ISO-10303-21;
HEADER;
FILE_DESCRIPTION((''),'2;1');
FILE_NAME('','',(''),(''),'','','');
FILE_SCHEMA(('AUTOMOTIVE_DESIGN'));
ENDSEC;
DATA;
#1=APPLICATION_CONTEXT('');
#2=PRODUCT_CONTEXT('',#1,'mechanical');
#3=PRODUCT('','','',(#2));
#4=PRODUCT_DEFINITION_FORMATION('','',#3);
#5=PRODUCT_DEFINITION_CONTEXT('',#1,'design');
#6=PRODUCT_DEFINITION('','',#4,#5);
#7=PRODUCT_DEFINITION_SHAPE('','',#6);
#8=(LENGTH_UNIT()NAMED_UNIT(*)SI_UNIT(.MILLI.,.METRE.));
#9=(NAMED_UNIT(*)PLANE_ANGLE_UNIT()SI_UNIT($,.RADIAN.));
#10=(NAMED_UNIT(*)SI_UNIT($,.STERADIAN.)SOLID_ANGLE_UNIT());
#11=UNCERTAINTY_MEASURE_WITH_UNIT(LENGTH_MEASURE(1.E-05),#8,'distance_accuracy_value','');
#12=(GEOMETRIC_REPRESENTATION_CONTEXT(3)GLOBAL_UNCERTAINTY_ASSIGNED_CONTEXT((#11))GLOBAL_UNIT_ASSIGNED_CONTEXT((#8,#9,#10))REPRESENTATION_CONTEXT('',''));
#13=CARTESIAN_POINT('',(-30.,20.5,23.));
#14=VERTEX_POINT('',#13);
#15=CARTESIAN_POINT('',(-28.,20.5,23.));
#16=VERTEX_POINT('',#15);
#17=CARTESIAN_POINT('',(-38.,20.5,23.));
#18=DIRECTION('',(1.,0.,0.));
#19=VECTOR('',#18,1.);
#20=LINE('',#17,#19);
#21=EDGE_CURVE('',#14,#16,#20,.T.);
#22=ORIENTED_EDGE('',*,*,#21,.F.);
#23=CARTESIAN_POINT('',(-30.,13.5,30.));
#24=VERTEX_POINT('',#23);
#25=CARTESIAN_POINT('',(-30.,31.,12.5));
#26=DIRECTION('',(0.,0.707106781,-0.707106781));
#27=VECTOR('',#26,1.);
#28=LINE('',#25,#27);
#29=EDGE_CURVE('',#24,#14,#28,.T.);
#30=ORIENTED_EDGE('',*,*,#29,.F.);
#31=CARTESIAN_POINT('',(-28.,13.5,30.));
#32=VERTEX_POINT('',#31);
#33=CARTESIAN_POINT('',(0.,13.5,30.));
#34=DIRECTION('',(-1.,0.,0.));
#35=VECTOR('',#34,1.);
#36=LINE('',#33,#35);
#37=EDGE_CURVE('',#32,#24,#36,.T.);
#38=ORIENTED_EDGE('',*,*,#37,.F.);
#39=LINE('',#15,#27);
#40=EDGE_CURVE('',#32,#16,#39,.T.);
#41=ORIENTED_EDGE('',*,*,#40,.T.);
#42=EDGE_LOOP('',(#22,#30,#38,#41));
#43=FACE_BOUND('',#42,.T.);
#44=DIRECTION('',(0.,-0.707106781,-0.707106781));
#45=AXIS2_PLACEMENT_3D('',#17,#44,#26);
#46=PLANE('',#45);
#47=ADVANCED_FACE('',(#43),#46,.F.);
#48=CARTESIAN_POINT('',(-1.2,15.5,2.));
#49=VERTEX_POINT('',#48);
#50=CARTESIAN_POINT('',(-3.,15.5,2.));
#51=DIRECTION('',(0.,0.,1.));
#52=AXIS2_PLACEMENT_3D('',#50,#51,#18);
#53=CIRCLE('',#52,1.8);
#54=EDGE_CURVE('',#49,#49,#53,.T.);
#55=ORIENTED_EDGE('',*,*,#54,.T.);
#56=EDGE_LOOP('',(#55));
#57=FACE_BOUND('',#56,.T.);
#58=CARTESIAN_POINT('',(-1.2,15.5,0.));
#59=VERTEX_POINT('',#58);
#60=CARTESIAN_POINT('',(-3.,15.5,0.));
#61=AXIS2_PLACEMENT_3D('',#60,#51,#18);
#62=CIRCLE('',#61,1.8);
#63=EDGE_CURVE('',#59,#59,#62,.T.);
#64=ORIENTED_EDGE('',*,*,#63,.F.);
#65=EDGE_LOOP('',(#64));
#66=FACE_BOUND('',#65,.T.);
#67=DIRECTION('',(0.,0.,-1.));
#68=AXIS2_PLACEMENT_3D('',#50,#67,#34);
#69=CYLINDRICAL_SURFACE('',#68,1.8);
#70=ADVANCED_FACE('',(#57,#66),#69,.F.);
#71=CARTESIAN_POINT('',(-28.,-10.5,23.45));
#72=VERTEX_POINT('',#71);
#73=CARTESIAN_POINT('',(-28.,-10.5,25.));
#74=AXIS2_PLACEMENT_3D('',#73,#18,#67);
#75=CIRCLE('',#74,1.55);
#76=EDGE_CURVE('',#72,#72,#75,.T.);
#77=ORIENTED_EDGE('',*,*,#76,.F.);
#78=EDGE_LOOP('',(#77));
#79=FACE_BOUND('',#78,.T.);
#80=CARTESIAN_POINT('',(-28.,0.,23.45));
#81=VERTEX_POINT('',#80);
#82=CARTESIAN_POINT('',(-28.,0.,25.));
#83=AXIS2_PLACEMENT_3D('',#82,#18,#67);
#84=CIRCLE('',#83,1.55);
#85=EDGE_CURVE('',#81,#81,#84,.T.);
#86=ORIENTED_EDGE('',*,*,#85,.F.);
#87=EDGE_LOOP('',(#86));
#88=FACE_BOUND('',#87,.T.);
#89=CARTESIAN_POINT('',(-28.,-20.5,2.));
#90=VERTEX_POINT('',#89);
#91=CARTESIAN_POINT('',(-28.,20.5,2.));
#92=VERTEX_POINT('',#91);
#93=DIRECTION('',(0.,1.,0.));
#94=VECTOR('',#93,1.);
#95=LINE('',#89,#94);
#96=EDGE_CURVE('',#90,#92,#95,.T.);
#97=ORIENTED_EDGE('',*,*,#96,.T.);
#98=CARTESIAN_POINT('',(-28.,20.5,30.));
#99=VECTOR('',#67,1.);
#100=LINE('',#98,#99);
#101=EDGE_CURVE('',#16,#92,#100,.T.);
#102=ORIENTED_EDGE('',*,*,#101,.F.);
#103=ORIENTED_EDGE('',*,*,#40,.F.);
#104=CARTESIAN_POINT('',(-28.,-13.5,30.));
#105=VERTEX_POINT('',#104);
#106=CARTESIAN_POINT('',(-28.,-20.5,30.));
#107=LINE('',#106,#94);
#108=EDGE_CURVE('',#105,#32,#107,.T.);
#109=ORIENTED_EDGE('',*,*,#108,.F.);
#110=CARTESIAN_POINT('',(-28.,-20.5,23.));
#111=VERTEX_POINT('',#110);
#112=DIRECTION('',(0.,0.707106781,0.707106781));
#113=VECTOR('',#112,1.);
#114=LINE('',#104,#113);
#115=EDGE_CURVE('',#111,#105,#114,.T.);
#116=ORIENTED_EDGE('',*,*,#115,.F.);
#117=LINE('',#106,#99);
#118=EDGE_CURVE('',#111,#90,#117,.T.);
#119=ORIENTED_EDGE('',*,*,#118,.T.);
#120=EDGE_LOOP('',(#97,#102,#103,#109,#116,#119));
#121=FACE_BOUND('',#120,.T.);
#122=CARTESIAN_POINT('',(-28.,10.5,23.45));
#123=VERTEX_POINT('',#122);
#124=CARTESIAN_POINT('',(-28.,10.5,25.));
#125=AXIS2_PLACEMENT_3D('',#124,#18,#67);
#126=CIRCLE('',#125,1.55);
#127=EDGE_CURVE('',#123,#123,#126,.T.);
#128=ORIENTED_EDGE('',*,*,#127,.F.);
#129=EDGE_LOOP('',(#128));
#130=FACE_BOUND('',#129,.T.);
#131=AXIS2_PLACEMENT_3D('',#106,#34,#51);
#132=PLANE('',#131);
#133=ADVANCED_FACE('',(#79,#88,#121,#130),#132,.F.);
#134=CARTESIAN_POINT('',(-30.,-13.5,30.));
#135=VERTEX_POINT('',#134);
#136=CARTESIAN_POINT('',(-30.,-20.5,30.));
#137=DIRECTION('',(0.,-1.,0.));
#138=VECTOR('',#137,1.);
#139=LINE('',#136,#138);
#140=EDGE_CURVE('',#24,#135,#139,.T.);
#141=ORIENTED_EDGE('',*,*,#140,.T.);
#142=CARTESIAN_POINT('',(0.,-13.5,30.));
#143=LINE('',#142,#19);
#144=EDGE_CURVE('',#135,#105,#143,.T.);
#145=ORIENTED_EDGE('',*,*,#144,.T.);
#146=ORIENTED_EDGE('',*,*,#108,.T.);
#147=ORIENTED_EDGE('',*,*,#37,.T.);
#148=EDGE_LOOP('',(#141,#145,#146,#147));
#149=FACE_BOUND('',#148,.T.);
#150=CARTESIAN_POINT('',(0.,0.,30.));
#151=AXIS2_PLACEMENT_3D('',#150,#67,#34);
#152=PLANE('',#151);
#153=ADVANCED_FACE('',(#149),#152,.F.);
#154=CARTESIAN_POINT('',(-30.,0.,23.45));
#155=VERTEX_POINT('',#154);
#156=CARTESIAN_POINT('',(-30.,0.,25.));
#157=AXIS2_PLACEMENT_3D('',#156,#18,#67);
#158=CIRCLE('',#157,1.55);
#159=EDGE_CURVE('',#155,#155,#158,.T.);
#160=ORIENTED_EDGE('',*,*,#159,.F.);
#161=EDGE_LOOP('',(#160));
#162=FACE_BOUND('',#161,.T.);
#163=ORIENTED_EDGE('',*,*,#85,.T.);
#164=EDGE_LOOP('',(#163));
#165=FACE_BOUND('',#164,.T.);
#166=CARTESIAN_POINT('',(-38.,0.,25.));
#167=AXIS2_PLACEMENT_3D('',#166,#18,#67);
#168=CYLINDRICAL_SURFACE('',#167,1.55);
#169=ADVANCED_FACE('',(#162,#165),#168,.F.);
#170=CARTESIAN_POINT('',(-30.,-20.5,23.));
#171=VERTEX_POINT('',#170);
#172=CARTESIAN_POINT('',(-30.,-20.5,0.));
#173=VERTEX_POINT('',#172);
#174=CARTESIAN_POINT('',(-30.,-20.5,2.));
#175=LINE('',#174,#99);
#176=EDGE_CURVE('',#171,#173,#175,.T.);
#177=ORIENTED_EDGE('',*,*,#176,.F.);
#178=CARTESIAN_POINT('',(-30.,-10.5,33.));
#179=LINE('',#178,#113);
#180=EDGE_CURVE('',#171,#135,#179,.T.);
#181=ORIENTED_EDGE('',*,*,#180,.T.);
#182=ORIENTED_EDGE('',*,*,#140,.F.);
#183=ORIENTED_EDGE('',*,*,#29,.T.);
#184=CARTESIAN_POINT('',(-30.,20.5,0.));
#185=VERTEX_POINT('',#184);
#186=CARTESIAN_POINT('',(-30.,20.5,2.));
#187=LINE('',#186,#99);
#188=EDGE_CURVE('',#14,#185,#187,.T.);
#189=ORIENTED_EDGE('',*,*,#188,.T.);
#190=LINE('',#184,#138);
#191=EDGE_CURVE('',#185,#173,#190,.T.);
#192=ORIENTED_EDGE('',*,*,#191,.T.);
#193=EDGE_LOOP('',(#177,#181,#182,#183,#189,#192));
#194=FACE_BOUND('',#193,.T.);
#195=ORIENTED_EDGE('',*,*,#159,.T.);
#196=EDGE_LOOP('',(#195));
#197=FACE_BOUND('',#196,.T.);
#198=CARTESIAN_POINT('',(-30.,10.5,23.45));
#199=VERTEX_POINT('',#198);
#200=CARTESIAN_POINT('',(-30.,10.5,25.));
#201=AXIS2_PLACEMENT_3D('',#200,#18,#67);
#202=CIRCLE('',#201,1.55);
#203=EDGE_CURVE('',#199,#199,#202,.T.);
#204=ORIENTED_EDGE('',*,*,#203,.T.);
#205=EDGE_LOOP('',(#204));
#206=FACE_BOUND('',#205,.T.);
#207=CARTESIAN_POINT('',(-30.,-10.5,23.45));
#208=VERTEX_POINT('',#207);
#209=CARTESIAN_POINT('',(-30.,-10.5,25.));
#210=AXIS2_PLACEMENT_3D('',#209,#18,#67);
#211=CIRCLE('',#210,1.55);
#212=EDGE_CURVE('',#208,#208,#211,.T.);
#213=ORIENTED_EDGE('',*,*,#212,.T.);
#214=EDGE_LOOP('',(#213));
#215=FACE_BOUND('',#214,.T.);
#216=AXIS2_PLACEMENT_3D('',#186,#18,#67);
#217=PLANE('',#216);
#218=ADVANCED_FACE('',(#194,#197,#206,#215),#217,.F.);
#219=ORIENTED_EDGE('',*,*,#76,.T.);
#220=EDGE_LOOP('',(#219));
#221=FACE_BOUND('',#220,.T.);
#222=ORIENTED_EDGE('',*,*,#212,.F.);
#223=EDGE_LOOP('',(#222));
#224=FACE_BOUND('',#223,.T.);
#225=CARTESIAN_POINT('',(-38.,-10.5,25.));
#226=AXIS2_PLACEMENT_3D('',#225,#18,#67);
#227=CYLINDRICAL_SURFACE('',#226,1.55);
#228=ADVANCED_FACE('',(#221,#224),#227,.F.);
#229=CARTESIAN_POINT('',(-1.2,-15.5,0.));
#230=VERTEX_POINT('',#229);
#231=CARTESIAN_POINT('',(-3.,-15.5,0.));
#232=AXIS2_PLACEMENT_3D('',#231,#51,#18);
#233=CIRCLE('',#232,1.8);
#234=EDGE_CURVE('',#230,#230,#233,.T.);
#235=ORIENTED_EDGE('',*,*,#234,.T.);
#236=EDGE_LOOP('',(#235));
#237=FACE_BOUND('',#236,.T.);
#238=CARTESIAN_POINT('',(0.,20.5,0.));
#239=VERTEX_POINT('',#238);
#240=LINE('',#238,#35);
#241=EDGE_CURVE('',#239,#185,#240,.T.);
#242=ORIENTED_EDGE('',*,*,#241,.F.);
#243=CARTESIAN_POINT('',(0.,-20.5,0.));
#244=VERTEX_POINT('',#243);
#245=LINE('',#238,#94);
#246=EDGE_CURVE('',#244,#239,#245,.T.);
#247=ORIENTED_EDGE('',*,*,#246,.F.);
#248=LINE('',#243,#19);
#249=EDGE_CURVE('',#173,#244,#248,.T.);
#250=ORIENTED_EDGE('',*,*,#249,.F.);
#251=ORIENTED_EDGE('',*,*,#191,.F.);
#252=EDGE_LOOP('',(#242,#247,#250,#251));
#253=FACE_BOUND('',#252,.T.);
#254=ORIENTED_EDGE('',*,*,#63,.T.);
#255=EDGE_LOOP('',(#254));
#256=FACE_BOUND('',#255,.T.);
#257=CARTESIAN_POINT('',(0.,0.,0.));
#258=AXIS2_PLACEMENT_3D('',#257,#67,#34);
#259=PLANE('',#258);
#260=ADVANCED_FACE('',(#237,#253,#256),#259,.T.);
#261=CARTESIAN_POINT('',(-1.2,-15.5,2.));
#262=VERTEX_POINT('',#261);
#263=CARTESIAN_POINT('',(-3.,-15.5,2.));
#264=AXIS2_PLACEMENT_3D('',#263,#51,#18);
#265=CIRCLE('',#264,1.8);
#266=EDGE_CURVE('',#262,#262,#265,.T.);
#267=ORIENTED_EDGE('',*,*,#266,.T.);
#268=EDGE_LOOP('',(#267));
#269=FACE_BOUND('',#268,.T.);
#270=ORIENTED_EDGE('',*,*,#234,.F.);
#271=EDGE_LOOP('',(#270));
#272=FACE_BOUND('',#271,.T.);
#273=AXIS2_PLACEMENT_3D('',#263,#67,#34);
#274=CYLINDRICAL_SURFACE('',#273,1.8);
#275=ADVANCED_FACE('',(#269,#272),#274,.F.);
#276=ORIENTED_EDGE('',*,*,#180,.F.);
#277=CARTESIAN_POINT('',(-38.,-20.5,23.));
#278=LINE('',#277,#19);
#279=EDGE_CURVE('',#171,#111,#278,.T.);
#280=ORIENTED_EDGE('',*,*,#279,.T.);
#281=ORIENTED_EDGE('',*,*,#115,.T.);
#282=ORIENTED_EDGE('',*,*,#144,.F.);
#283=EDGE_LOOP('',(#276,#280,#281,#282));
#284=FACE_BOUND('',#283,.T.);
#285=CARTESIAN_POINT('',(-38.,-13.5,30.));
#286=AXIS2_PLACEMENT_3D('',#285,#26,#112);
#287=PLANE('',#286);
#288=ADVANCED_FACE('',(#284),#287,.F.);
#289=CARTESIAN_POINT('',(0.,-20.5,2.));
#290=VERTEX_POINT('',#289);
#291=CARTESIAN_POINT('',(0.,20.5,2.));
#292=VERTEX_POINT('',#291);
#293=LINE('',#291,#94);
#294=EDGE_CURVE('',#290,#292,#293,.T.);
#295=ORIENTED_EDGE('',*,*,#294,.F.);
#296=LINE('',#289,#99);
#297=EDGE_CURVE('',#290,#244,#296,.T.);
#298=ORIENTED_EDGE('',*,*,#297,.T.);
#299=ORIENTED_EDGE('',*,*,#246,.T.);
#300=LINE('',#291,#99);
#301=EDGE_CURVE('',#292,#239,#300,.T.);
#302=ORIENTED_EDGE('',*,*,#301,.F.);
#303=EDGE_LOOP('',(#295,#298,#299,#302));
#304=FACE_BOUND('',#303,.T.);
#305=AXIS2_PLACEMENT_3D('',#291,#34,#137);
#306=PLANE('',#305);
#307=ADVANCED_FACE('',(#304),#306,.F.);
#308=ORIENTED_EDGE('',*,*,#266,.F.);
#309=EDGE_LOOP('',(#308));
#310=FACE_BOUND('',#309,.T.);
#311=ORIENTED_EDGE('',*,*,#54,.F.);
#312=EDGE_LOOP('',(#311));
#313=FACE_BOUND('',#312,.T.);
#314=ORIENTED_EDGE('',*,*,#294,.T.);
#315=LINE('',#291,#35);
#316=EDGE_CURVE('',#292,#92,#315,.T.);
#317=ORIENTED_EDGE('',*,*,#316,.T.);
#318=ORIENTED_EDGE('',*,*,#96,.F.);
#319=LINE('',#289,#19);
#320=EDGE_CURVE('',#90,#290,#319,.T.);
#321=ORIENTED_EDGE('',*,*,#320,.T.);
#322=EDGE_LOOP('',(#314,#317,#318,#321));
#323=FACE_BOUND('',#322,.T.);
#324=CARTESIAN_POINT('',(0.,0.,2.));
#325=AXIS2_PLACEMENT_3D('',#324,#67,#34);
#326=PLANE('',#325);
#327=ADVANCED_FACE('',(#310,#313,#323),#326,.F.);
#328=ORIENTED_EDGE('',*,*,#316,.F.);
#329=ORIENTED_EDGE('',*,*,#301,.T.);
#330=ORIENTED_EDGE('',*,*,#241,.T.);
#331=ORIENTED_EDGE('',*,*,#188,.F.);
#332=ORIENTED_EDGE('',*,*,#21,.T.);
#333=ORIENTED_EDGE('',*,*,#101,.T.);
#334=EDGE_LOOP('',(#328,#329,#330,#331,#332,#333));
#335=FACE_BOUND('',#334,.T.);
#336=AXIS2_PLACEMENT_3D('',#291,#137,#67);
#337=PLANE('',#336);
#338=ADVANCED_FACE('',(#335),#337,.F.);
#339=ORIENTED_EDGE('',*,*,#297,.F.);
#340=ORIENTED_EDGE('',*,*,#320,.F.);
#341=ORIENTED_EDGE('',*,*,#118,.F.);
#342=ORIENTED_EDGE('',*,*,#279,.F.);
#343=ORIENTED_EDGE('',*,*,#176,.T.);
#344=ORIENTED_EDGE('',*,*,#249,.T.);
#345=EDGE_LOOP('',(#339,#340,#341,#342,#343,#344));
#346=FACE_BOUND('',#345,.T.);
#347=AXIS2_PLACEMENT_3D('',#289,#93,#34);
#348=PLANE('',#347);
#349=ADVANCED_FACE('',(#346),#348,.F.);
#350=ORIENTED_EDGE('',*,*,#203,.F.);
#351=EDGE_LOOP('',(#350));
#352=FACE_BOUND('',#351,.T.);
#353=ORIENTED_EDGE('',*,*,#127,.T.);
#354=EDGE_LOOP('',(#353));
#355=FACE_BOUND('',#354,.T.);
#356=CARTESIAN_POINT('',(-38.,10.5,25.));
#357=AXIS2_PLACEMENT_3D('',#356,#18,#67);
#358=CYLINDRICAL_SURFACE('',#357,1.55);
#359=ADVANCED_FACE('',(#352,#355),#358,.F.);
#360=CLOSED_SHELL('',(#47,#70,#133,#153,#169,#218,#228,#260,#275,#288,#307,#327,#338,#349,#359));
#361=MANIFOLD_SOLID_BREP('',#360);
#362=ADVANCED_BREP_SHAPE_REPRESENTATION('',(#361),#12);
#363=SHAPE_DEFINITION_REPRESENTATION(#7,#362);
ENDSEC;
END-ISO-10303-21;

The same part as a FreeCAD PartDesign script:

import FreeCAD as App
import Part
import Sketcher

V = App.Vector

doc = App.newDocument("Part")
body = doc.addObject("PartDesign::Body", "Body")

sketch1 = doc.addObject("Sketcher::SketchObject", "Sketch")
body.addObject(sketch1)
sketch1.AttachmentSupport = (doc.XY_Plane, [""])
sketch1.MapMode = "FlatFace"
sketch1.addGeometry([
    Part.LineSegment(V(-30, 20.5, 0), V(-30, -20.5, 0)),
    Part.LineSegment(V(-30, -20.5, 0), V(0, -20.5, 0)),
    Part.LineSegment(V(0, -20.5, 0), V(0, 20.5, 0)),
    Part.LineSegment(V(0, 20.5, 0), V(-30, 20.5, 0)),
    Part.Circle(V(-3, -15.5, 0), V(0, 0, 1), 1.8),
    Part.Circle(V(-3, 15.5, 0), V(0, 0, 1), 1.8),
], False)
sketch1.addConstraint([
    Sketcher.Constraint("Coincident", 0, 2, 1, 1),
    Sketcher.Constraint("Coincident", 1, 2, 2, 1),
    Sketcher.Constraint("Coincident", 2, 2, 3, 1),
    Sketcher.Constraint("Coincident", 3, 2, 0, 1),
    Sketcher.Constraint("Vertical", 0),
    Sketcher.Constraint("Horizontal", 1),
    Sketcher.Constraint("Vertical", 2),
    Sketcher.Constraint("Horizontal", 3),
    Sketcher.Constraint("Equal", 4, 5),
    Sketcher.Constraint("Symmetric", 1, 2, 2, 2, -1, 1),
    Sketcher.Constraint("Symmetric", 4, 3, 5, 3, -1),
    Sketcher.Constraint("Diameter", 4, 3.6),
    Sketcher.Constraint("DistanceX", 1, 1, 1, 2, 30.0),
    Sketcher.Constraint("DistanceY", 0, 2, 0, 1, 41.0),
    Sketcher.Constraint("DistanceX", 4, 3, -1, 1, 3.0),
    Sketcher.Constraint("DistanceY", 4, 3, 5, 3, 31.0),
])
pad1 = doc.addObject("PartDesign::Pad", "Pad")
body.addObject(pad1)
pad1.Profile = sketch1
pad1.Length = 2

sketch2 = doc.addObject("Sketcher::SketchObject", "Sketch001")
body.addObject(sketch2)
sketch2.AttachmentSupport = (doc.XY_Plane, [""])
sketch2.MapMode = "FlatFace"
sketch2.AttachmentOffset = App.Placement(V(0, 0, 2), App.Rotation())
sketch2.addGeometry([
    Part.LineSegment(V(-30, 20.5, 0), V(-30, -20.5, 0)),
    Part.LineSegment(V(-30, -20.5, 0), V(-28, -20.5, 0)),
    Part.LineSegment(V(-28, -20.5, 0), V(-28, 20.5, 0)),
    Part.LineSegment(V(-28, 20.5, 0), V(-30, 20.5, 0)),
], False)
sketch2.addConstraint([
    Sketcher.Constraint("Coincident", 0, 2, 1, 1),
    Sketcher.Constraint("Coincident", 1, 2, 2, 1),
    Sketcher.Constraint("Coincident", 2, 2, 3, 1),
    Sketcher.Constraint("Coincident", 3, 2, 0, 1),
    Sketcher.Constraint("Vertical", 0),
    Sketcher.Constraint("Horizontal", 1),
    Sketcher.Constraint("Vertical", 2),
    Sketcher.Constraint("Horizontal", 3),
    Sketcher.Constraint("DistanceX", 1, 1, 1, 2, 2.0),
    Sketcher.Constraint("DistanceY", 0, 2, 0, 1, 41.0),
    Sketcher.Constraint("DistanceX", 0, 2, -1, 1, 30.0),
    Sketcher.Constraint("DistanceY", 0, 2, -1, 1, 20.5),
])
pad2 = doc.addObject("PartDesign::Pad", "Pad001")
body.addObject(pad2)
pad2.Profile = sketch2
pad2.Length = 28

sketch3 = doc.addObject("Sketcher::SketchObject", "Sketch002")
body.addObject(sketch3)
sketch3.AttachmentSupport = (doc.YZ_Plane, [""])
sketch3.MapMode = "FlatFace"
sketch3.AttachmentOffset = App.Placement(V(0, 0, -28), App.Rotation())
sketch3.addGeometry([
    Part.Circle(V(10.5, 25, 0), V(0, 0, 1), 1.55),
    Part.Circle(V(-10.5, 25, 0), V(0, 0, 1), 1.55),
    Part.Circle(V(0, 25, 0), V(0, 0, 1), 1.55),
    Part.LineSegment(V(-20.5, 23, 0), V(-13.5, 30, 0)),
    Part.LineSegment(V(-13.5, 30, 0), V(-20.5, 30, 0)),
    Part.LineSegment(V(-20.5, 30, 0), V(-20.5, 23, 0)),
    Part.LineSegment(V(20.5, 30, 0), V(13.5, 30, 0)),
    Part.LineSegment(V(13.5, 30, 0), V(20.5, 23, 0)),
    Part.LineSegment(V(20.5, 23, 0), V(20.5, 30, 0)),
], False)
sketch3.addConstraint([
    Sketcher.Constraint("Coincident", 3, 2, 4, 1),
    Sketcher.Constraint("Coincident", 4, 2, 5, 1),
    Sketcher.Constraint("Coincident", 5, 2, 3, 1),
    Sketcher.Constraint("Coincident", 6, 2, 7, 1),
    Sketcher.Constraint("Coincident", 7, 2, 8, 1),
    Sketcher.Constraint("Coincident", 8, 2, 6, 1),
    Sketcher.Constraint("Horizontal", 4),
    Sketcher.Constraint("Vertical", 5),
    Sketcher.Constraint("Horizontal", 6),
    Sketcher.Constraint("Vertical", 8),
    Sketcher.Constraint("Equal", 0, 1),
    Sketcher.Constraint("Equal", 1, 2),
    Sketcher.Constraint("Symmetric", 0, 3, 1, 3, -2),
    Sketcher.Constraint("Symmetric", 3, 2, 6, 2, -2),
    Sketcher.Constraint("Symmetric", 5, 2, 7, 2, -2),
    Sketcher.Constraint("PointOnObject", 2, 3, -2),
    Sketcher.Constraint("Perpendicular", 3, 7),
    Sketcher.Constraint("Horizontal", 1, 3, 2, 3),
    Sketcher.Constraint("Diameter", 0, 3.1),
    Sketcher.Constraint("DistanceX", 4, 2, 4, 1, 7.0),
    Sketcher.Constraint("DistanceY", -1, 1, 0, 3, 25.0),
    Sketcher.Constraint("DistanceY", -1, 1, 3, 2, 30.0),
    Sketcher.Constraint("DistanceX", 1, 3, 0, 3, 21.0),
    Sketcher.Constraint("DistanceX", 3, 2, 1, 3, 3.0),
])
pocket1 = doc.addObject("PartDesign::Pocket", "Pocket")
body.addObject(pocket1)
pocket1.Profile = sketch3
pocket1.Length = 10

doc.recompute()
